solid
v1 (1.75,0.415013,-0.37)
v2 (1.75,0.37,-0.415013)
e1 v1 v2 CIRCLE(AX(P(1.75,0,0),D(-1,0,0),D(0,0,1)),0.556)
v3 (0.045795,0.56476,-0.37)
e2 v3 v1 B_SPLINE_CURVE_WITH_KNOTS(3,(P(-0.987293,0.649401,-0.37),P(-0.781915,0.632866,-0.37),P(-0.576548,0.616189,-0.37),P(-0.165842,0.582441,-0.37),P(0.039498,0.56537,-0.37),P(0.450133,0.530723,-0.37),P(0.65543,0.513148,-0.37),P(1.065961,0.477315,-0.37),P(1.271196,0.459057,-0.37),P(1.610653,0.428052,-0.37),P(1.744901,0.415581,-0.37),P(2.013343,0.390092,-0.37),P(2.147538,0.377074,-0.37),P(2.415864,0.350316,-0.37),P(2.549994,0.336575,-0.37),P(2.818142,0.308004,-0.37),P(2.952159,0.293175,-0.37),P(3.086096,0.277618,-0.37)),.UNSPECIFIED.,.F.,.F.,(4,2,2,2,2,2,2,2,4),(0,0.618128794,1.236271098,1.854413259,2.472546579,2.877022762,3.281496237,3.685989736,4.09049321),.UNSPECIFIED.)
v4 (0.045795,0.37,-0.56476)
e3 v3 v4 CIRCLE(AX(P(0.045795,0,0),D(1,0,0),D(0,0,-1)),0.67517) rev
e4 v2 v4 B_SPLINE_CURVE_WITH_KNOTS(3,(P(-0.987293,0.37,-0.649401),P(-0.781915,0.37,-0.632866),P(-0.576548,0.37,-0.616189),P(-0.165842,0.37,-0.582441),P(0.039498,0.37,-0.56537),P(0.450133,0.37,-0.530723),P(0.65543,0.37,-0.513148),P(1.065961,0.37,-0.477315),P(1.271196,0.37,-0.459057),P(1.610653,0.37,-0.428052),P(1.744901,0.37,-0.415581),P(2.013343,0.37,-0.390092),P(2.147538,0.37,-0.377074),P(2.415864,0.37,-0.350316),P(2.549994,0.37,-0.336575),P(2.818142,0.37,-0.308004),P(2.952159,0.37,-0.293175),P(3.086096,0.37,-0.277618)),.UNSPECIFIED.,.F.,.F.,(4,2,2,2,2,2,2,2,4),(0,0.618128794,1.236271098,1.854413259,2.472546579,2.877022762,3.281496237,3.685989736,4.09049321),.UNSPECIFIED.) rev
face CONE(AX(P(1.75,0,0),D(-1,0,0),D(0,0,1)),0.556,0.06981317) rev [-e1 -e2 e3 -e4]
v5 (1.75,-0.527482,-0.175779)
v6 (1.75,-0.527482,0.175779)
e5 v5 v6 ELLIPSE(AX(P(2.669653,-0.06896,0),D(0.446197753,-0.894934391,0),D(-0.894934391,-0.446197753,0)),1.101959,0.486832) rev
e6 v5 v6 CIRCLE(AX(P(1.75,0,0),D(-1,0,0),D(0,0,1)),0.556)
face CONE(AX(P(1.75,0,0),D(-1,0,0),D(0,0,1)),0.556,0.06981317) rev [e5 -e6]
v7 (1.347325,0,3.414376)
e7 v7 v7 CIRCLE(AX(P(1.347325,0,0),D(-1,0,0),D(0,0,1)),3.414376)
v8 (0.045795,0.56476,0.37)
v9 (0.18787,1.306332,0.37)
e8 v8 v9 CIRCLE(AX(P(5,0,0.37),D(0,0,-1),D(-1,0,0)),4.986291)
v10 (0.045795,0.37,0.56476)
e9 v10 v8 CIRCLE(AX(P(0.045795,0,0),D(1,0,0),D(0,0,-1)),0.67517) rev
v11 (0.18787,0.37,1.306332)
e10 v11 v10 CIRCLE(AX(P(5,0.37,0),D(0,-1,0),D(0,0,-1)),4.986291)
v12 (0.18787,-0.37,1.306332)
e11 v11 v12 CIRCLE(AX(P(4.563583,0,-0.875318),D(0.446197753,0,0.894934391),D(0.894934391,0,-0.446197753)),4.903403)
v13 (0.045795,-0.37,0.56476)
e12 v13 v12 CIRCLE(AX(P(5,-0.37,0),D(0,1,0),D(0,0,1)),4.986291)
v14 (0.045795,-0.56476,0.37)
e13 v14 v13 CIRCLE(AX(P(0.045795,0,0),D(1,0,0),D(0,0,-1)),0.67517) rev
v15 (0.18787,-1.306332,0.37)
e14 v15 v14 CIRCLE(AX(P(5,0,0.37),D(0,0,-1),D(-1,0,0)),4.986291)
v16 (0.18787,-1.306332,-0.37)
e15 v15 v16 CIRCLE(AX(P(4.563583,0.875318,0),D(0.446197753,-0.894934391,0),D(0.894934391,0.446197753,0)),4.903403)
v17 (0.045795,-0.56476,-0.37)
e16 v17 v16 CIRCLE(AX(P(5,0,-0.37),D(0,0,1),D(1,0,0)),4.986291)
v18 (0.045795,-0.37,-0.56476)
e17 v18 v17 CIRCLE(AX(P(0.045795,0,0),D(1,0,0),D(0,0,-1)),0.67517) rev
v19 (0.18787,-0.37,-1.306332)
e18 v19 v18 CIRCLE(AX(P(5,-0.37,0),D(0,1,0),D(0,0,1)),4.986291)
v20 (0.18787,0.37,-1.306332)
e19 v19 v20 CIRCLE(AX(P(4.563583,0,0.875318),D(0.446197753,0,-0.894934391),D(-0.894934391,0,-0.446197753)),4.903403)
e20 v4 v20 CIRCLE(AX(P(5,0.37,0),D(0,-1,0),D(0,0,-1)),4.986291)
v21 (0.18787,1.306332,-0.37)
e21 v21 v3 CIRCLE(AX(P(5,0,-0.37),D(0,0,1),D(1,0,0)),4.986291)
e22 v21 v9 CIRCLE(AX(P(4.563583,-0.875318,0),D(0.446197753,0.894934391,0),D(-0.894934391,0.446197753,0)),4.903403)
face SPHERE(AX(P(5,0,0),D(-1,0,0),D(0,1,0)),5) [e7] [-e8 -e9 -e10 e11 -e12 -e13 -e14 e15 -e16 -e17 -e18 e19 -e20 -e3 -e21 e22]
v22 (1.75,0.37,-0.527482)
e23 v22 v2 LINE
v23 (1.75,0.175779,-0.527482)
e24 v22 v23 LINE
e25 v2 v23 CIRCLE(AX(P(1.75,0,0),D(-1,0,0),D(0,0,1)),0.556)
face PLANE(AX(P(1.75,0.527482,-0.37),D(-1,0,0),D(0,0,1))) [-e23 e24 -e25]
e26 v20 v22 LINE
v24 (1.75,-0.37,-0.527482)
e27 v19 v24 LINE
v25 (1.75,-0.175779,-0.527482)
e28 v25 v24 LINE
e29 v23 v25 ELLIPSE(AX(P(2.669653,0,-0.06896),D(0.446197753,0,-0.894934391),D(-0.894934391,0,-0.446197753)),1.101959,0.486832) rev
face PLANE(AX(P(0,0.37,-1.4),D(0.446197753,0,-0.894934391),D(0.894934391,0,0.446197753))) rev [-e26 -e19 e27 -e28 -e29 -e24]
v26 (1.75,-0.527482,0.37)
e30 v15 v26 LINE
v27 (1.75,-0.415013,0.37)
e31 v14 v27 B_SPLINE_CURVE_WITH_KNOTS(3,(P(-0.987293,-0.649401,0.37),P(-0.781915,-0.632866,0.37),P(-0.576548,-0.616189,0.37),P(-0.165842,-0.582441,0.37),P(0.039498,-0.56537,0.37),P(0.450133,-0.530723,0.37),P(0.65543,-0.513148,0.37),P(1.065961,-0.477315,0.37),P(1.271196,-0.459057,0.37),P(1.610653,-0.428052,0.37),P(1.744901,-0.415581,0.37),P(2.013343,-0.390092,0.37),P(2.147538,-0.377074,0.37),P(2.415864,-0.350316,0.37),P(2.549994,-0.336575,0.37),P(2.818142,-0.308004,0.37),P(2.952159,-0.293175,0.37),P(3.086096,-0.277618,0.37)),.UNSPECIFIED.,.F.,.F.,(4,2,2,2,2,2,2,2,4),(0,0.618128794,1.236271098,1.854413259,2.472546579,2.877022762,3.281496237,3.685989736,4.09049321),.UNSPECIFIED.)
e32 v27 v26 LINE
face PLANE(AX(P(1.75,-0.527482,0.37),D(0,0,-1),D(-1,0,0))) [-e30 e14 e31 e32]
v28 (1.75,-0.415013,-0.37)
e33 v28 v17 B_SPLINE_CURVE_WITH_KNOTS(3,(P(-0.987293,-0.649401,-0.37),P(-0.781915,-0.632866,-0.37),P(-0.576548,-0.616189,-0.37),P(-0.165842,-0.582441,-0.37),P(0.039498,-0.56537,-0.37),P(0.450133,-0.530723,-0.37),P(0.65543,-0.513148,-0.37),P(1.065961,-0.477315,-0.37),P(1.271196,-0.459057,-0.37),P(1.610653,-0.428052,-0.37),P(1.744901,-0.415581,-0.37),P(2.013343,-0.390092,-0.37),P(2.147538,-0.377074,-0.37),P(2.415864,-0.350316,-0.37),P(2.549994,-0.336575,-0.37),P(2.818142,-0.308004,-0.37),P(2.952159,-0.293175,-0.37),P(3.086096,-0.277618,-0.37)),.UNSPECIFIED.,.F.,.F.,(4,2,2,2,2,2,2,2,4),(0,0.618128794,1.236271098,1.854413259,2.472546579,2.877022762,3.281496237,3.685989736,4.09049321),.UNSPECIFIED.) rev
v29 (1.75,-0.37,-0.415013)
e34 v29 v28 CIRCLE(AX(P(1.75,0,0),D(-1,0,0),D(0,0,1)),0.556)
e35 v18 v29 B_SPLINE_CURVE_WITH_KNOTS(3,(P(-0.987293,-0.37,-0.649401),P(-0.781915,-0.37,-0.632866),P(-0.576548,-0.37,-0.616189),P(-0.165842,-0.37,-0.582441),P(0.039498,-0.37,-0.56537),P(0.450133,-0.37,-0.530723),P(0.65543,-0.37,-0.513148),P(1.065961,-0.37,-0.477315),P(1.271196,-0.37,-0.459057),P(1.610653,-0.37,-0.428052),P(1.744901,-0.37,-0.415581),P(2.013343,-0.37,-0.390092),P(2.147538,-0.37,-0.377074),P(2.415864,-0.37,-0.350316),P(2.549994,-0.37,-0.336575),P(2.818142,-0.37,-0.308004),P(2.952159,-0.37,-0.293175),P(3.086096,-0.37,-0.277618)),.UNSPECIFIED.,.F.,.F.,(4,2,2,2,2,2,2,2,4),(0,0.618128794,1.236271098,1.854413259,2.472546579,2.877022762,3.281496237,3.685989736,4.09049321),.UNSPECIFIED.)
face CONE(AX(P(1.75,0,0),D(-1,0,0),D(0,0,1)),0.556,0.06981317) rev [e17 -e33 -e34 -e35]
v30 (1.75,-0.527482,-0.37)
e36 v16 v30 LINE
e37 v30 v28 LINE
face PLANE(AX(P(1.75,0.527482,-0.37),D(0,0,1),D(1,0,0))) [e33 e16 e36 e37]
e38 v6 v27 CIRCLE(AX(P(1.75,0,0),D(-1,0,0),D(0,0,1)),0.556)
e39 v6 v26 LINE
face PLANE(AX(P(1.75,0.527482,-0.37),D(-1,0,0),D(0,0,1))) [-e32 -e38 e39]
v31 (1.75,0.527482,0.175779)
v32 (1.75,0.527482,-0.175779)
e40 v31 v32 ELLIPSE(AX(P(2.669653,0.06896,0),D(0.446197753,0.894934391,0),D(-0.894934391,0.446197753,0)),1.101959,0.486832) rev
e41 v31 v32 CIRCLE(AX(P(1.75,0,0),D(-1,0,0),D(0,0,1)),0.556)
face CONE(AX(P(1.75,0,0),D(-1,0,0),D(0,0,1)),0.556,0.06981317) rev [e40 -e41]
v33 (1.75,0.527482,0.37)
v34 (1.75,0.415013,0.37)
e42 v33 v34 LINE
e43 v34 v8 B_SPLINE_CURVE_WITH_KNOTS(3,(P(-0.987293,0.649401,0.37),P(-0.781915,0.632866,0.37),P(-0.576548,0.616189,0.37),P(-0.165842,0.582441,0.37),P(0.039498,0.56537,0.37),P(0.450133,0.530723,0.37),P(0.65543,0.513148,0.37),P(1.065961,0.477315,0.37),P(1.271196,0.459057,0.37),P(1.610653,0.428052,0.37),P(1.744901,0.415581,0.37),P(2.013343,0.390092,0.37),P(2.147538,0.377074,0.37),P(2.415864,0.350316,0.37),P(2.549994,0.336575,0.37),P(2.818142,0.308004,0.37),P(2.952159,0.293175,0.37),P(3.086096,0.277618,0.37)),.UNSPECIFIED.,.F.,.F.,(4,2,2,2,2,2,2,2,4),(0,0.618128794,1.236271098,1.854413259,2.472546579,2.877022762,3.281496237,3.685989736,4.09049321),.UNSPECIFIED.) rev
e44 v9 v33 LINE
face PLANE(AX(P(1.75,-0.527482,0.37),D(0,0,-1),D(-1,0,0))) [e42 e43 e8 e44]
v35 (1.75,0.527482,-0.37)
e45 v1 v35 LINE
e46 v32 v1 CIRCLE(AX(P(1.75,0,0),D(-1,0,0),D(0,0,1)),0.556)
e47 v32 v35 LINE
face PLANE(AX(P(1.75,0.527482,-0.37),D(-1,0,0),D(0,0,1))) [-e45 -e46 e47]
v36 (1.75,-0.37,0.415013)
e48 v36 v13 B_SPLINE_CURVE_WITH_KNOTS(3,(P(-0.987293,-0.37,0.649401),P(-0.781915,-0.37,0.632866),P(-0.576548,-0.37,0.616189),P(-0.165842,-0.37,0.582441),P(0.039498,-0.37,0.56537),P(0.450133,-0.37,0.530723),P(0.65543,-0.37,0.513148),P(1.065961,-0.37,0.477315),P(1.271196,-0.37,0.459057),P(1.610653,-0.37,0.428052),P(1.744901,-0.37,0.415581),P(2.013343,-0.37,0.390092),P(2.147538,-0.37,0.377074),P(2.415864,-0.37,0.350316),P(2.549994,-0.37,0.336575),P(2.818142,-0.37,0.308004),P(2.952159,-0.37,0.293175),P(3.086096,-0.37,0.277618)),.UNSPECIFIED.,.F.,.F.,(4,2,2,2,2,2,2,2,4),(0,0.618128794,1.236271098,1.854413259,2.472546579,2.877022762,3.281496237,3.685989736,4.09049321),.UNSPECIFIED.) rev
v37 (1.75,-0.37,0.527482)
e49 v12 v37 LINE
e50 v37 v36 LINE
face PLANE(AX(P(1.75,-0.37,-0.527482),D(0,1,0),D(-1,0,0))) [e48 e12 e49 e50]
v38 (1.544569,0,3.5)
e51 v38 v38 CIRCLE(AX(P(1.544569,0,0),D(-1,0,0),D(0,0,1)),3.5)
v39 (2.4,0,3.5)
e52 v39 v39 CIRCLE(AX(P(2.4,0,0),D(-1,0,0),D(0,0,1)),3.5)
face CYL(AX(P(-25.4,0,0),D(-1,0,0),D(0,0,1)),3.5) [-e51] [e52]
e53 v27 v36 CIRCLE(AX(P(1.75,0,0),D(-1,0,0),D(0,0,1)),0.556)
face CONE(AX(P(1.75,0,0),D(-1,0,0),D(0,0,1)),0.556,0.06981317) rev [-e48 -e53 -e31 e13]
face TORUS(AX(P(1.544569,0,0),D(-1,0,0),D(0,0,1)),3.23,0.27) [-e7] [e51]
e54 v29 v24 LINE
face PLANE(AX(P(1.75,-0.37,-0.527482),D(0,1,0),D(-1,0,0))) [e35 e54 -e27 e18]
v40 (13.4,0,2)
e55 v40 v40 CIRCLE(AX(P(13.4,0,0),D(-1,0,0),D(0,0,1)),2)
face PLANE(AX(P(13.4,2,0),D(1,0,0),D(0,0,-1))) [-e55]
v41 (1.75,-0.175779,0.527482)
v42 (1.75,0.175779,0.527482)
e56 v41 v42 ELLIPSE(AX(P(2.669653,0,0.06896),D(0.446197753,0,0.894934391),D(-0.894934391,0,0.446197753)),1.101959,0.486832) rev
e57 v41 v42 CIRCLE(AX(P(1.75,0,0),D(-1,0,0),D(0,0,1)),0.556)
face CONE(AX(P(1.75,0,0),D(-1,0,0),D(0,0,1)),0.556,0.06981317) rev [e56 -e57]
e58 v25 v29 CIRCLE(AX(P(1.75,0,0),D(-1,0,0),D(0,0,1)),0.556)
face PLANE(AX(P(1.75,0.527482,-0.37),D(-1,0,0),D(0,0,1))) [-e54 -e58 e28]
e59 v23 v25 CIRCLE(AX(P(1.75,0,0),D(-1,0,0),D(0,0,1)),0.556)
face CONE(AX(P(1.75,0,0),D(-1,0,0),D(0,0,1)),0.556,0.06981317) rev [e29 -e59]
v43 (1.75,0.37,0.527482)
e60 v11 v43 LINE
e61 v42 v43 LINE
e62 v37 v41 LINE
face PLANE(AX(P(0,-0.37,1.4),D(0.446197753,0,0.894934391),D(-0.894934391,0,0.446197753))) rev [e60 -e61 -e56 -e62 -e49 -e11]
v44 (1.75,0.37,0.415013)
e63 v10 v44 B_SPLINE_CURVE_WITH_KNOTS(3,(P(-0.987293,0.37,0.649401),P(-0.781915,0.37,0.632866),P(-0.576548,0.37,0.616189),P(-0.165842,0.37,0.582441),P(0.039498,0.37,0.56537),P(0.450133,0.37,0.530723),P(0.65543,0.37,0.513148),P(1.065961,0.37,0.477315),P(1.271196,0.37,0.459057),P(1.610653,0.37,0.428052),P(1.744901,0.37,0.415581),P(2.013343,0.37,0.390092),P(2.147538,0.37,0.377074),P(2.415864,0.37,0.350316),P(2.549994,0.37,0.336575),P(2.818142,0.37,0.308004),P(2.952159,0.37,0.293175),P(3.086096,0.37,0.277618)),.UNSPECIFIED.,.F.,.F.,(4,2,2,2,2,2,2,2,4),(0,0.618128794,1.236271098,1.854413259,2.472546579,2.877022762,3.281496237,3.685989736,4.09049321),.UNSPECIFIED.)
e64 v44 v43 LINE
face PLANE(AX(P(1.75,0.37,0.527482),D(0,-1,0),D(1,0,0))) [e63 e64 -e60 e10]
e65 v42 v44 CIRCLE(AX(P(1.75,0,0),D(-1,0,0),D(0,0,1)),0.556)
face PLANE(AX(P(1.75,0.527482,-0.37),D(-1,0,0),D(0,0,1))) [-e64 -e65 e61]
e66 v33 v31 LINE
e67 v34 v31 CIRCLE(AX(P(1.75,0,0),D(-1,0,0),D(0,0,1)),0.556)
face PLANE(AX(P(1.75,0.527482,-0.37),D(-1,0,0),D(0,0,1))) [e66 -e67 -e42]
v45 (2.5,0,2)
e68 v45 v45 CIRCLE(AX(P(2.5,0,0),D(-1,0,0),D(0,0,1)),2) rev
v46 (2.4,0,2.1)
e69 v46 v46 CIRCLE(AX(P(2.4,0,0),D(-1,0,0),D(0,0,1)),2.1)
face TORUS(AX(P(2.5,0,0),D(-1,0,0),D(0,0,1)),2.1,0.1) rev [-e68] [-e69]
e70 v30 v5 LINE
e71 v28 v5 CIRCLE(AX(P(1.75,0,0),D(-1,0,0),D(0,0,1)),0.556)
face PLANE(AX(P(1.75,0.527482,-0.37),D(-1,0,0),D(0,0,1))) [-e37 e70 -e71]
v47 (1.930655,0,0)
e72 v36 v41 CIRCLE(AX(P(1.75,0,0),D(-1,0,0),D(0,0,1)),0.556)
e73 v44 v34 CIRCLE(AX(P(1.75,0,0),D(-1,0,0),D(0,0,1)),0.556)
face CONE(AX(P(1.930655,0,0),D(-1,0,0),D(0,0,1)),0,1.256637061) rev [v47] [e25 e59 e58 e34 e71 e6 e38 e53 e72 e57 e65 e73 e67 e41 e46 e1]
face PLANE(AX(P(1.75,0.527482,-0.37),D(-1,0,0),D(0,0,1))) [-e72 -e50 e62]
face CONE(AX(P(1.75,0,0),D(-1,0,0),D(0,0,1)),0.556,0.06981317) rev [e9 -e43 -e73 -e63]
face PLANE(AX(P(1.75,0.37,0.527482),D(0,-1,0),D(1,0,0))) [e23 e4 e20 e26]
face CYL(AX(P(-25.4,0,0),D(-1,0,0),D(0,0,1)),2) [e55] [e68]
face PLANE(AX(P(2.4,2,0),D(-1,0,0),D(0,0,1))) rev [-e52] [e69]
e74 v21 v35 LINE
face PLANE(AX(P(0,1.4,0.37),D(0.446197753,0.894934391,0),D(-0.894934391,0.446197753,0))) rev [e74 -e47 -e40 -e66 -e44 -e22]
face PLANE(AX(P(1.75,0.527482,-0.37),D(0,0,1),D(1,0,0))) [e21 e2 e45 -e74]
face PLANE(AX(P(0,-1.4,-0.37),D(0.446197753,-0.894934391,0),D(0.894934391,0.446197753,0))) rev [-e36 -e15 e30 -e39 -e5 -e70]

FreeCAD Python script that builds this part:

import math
import FreeCAD as App
import Part
import Sketcher
from FreeCAD import Vector
Q = App.Units.Quantity


def edges_at(feature, points):
    """Names of the edges that pass closest to the given points."""
    edges = feature.Shape.Edges
    near = lambda p: min(range(len(edges)), key=lambda i: edges[i].distToShape(Part.Vertex(*p))[0])
    return sorted({f"Edge{near(p) + 1}" for p in points})


def add_polygon(sketch, points):
    """Adds a closed chain of lines whose ends are joined by coincident constraints."""
    first, n = sketch.GeometryCount, len(points)
    for a, b in zip(points, points[1:] + points[:1]):
        sketch.addGeometry(Part.LineSegment(App.Vector(*a, 0), App.Vector(*b, 0)), False)
    for i in range(n):
        sketch.addConstraint(Sketcher.Constraint("Coincident", first + i, 2, first + (i + 1) % n, 1))

doc = App.newDocument("Part")
body = doc.addObject("PartDesign::Body", "Body")

sketch1 = doc.addObject("Sketcher::SketchObject", "Sketch")
body.addObject(sketch1)
sketch1.AttachmentSupport = (doc.XY_Plane, [""])
sketch1.MapMode = "FlatFace"
sketch1.addGeometry([
    Part.LineSegment(Vector(2.4, 2, 0), Vector(2.4, 3.5, 0)),
    Part.LineSegment(Vector(2.4, 3.5, 0), Vector(1.54, 3.5, 0)),
    Part.ArcOfCircle(Part.Circle(Vector(1.54, 3.23, 0), Vector(0, 0, 1), 0.27), math.radians(90), math.radians(137)),
    Part.ArcOfCircle(Part.Circle(Vector(5, 0, 0), Vector(0, 0, 1), 5), math.radians(137), math.radians(180)),
    Part.LineSegment(Vector(0, 0, 0), Vector(13.4, 0, 0)),
    Part.LineSegment(Vector(13.4, 0, 0), Vector(13.4, 2, 0)),
    Part.LineSegment(Vector(13.4, 2, 0), Vector(2.4, 2, 0)),
], False)
sketch1.addConstraint([
    Sketcher.Constraint("Coincident", 0, 2, 1, 1),
    Sketcher.Constraint("Tangent", 1, 2, 2, 1),
    Sketcher.Constraint("Tangent", 2, 2, 3, 1),
    Sketcher.Constraint("Coincident", 3, 2, 4, 1),
    Sketcher.Constraint("Coincident", 4, 2, 5, 1),
    Sketcher.Constraint("Coincident", 5, 2, 6, 1),
    Sketcher.Constraint("Coincident", 6, 2, 0, 1),
    Sketcher.Constraint("Vertical", 0),
    Sketcher.Constraint("Horizontal", 1),
    Sketcher.Constraint("Horizontal", 4),
    Sketcher.Constraint("Vertical", 5),
    Sketcher.Constraint("Horizontal", 6),
    Sketcher.Constraint("Coincident", 3, 2, -1, 1),
    Sketcher.Constraint("PointOnObject", 3, 3, -1),
    Sketcher.Constraint("Radius", 3, 5.0),
    Sketcher.Constraint("DistanceX", 6, 2, 6, 1, 11.0),
    Sketcher.Constraint("DistanceY", 5, 1, 5, 2, 2.0),
    Sketcher.Constraint("Radius", 2, 0.27),
    Sketcher.Constraint("DistanceX", 4, 1, 4, 2, 13.4),
    Sketcher.Constraint("DistanceY", 0, 1, 0, 2, 1.5),
])
revolution = doc.addObject("PartDesign::Revolution", "Revolution")
body.addObject(revolution)
revolution.Profile = sketch1
revolution.ReferenceAxis = (sketch1, ["H_Axis"])
revolution.Angle = 360
doc.recompute()

fillet = doc.addObject("PartDesign::Fillet", "Fillet")
body.addObject(fillet)
fillet.Base = (revolution, edges_at(revolution, [(2.4, 0, -2)]))
fillet.Radius = 0.1

sketch2 = doc.addObject("Sketcher::SketchObject", "Sketch001")
body.addObject(sketch2)
sketch2.AttachmentSupport = (doc.YZ_Plane, [""])
sketch2.MapMode = "FlatFace"
add_polygon(sketch2, [(-1.4, 0.4), (-1.4, -0.4), (1.4, -0.4), (1.4, 0.4)])
sketch2.addConstraint([
    Sketcher.Constraint("Vertical", 0),
    Sketcher.Constraint("Horizontal", 1),
    Sketcher.Constraint("Vertical", 2),
    Sketcher.Constraint("Horizontal", 3),
    Sketcher.Constraint("Symmetric", 0, 2, 2, 2, -1, 1),
    Sketcher.Constraint("DistanceX", 1, 1, 1, 2, 2.8),
    Sketcher.Constraint("DistanceY", 0, 2, 0, 1, 0.74),
])

sketch3 = doc.addObject("Sketcher::SketchObject", "Sketch002")
body.addObject(sketch3)
sketch3.AttachmentSupport = (doc.YZ_Plane, [""])
sketch3.MapMode = "FlatFace"
sketch3.AttachmentOffset = App.Placement(Vector(0, 0, 1.75), App.Rotation())
add_polygon(sketch3, [(-0.5, 0.4), (-0.5, -0.4), (0.5, -0.4), (0.5, 0.4)])
sketch3.addConstraint([
    Sketcher.Constraint("Vertical", 0),
    Sketcher.Constraint("Horizontal", 1),
    Sketcher.Constraint("Vertical", 2),
    Sketcher.Constraint("Horizontal", 3),
    Sketcher.Constraint("Symmetric", 0, 2, 2, 2, -1, 1),
    Sketcher.Constraint("DistanceY", 0, 2, 0, 1, 0.74),
    Sketcher.Constraint("DistanceX", 1, 1, 1, 2, 1.054965),
])

subtractiveloft = doc.addObject("PartDesign::SubtractiveLoft", "SubtractiveLoft")
body.addObject(subtractiveloft)
subtractiveloft.Profile = sketch2
subtractiveloft.Sections = [sketch3]
doc.recompute()

polarpattern = doc.addObject("PartDesign::PolarPattern", "PolarPattern")
body.addObject(polarpattern)
polarpattern.Originals = [subtractiveloft]
polarpattern.Axis = (doc.X_Axis, [""])
polarpattern.Angle = 90
polarpattern.Occurrences = 2
body.Tip = polarpattern

sketch4 = doc.addObject("Sketcher::SketchObject", "Sketch003")
body.addObject(sketch4)
sketch4.AttachmentSupport = (doc.XY_Plane, [""])
sketch4.MapMode = "FlatFace"
add_polygon(sketch4, [(0, 0.7), (0, 0), (1.9, 0), (1.8, 0.6)])
sketch4.addConstraint([
    Sketcher.Constraint("Vertical", 0),
    Sketcher.Constraint("Horizontal", 1),
    Sketcher.Constraint("Coincident", 0, 2, -1, 1),
    Sketcher.Constraint("Angle", 2, Q("108 deg")),
    Sketcher.Constraint("Angle", 3, Q("176 deg")),
    Sketcher.Constraint("DistanceX", -1, 1, 2, 2, 1.75),
    Sketcher.Constraint("DistanceY", -1, 1, 2, 2, 0.556),
])
groove = doc.addObject("PartDesign::Groove", "Groove")
body.addObject(groove)
groove.Profile = sketch4
groove.ReferenceAxis = (sketch4, ["H_Axis"])
groove.Angle = 360

doc.recompute()
